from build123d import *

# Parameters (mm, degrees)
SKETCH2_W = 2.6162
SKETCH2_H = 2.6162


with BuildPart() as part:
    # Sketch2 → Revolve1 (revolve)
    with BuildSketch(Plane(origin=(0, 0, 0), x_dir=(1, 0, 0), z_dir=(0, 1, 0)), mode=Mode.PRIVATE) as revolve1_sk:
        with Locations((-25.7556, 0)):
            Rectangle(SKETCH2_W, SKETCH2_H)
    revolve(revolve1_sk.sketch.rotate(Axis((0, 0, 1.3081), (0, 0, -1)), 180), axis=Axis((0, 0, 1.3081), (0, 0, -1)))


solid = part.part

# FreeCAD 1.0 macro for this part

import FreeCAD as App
import Part
import Sketcher
from FreeCAD import Vector
Q = App.Units.Quantity


def add_polygon(sketch, points):
    """Adds a closed chain of lines whose ends are joined by coincident constraints."""
    first, n = sketch.GeometryCount, len(points)
    for a, b in zip(points, points[1:] + points[:1]):
        sketch.addGeometry(Part.LineSegment(App.Vector(*a, 0), App.Vector(*b, 0)), False)
    for i in range(n):
        sketch.addConstraint(Sketcher.Constraint("Coincident", first + i, 2, first + (i + 1) % n, 1))

doc = App.newDocument("Part")
body = doc.addObject("PartDesign::Body", "Body")

# Sketch on XZ plane
sketch1 = body.newObject("Sketcher::SketchObject", "Sketch")
sketch1.AttachmentSupport = (doc.getObject("XZ_Plane"), [""])
sketch1.MapMode = "FlatFace"
add_polygon(sketch1, [(-27.1, -1.3), (-27.1, 1.3), (-24.4, 1.3), (-24.4, -1.3)])  # lines 0-3
sketch1.addConstraint([
    Sketcher.Constraint("Vertical", 0),
    Sketcher.Constraint("Horizontal", 1),
    Sketcher.Constraint("Vertical", 2),
    Sketcher.Constraint("Horizontal", 3),
    Sketcher.Constraint("Equal", 3, 0),
    Sketcher.Constraint("DistanceX", 1, 1, 1, 2, Q("0.103 in")),
    Sketcher.Constraint("DistanceX", 0, 2, -1, 1, Q("1.0655 in")),
    Sketcher.Constraint("DistanceY", -1, 1, 0, 2, Q("0.0515 in")),
])
revolution = body.newObject("PartDesign::Revolution", "Revolution")
revolution.Profile = sketch1
revolution.ReferenceAxis = (sketch1, ["V_Axis"])
revolution.Angle = 360

doc.recompute()
